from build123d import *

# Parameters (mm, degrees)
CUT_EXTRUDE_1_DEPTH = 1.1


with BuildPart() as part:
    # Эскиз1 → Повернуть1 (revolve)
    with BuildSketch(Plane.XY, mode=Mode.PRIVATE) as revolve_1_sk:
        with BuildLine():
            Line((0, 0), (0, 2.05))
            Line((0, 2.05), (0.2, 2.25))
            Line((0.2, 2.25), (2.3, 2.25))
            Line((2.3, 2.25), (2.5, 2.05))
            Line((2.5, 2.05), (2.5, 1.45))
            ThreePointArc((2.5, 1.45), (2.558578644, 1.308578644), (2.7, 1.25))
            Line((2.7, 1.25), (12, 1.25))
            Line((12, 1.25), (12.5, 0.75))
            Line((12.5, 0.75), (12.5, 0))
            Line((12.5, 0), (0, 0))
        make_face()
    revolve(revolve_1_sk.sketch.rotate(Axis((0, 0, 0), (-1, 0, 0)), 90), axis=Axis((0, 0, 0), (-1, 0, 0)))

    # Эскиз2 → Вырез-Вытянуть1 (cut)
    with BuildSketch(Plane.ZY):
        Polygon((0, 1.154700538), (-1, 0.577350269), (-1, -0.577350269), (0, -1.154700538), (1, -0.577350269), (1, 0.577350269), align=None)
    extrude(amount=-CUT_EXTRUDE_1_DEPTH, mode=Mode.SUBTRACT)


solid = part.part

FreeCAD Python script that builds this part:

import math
import FreeCAD as App
import Part
import Sketcher
from FreeCAD import Vector
Q = App.Units.Quantity

doc = App.newDocument("Part")
body = doc.addObject("PartDesign::Body", "Body")

sketch1 = body.newObject("Sketcher::SketchObject", "Sketch")
sketch1.AttachmentSupport = (doc.getObject("XY_Plane"), [""])
sketch1.MapMode = "FlatFace"
sketch1.addGeometry(Part.LineSegment(Vector(0, 2.05, 0), Vector(0, 0, 0)), False)
sketch1.addGeometry(Part.LineSegment(Vector(0, 0, 0), Vector(12.5, 0, 0)), False)
sketch1.addGeometry(Part.LineSegment(Vector(12.5, 0, 0), Vector(12.5, 0.75, 0)), False)
sketch1.addGeometry(Part.LineSegment(Vector(12.5, 0.75, 0), Vector(12, 1.25, 0)), False)
sketch1.addGeometry(Part.LineSegment(Vector(12, 1.25, 0), Vector(2.7, 1.25, 0)), False)
sketch1.addGeometry(Part.ArcOfCircle(Part.Circle(Vector(2.7, 1.45, 0), Vector(0, 0, 1), 0.2), math.radians(-180), math.radians(-90)), False)
sketch1.addGeometry(Part.LineSegment(Vector(2.5, 1.45, 0), Vector(2.5, 2.05, 0)), False)
sketch1.addGeometry(Part.LineSegment(Vector(2.5, 2.05, 0), Vector(2.3, 2.25, 0)), False)
sketch1.addGeometry(Part.LineSegment(Vector(2.3, 2.25, 0), Vector(0.2, 2.25, 0)), False)
sketch1.addGeometry(Part.LineSegment(Vector(0.2, 2.25, 0), Vector(0, 2.05, 0)), False)
sketch1.addConstraint(Sketcher.Constraint("Coincident", 0, 2, 1, 1))
sketch1.addConstraint(Sketcher.Constraint("Coincident", 1, 2, 2, 1))
sketch1.addConstraint(Sketcher.Constraint("Coincident", 2, 2, 3, 1))
sketch1.addConstraint(Sketcher.Constraint("Coincident", 3, 2, 4, 1))
sketch1.addConstraint(Sketcher.Constraint("Tangent", 4, 2, 5, 2))
sketch1.addConstraint(Sketcher.Constraint("Tangent", 5, 1, 6, 1))
sketch1.addConstraint(Sketcher.Constraint("Coincident", 6, 2, 7, 1))
sketch1.addConstraint(Sketcher.Constraint("Coincident", 7, 2, 8, 1))
sketch1.addConstraint(Sketcher.Constraint("Coincident", 8, 2, 9, 1))
sketch1.addConstraint(Sketcher.Constraint("Coincident", 9, 2, 0, 1))
sketch1.addConstraint(Sketcher.Constraint("Vertical", 0))
sketch1.addConstraint(Sketcher.Constraint("Horizontal", 1))
sketch1.addConstraint(Sketcher.Constraint("Vertical", 2))
sketch1.addConstraint(Sketcher.Constraint("Horizontal", 4))
sketch1.addConstraint(Sketcher.Constraint("Vertical", 6))
sketch1.addConstraint(Sketcher.Constraint("Horizontal", 8))
sketch1.addConstraint(Sketcher.Constraint("Coincident", 0, 2, -1, 1))
sketch1.addConstraint(Sketcher.Constraint("Parallel", 3, 7))
sketch1.addConstraint(Sketcher.Constraint("Perpendicular", 7, 9))
sketch1.addConstraint(Sketcher.Constraint("Horizontal", 6, 2, 9, 2))
sketch1.addConstraint(Sketcher.Constraint("Equal", 7, 9))
sketch1.addConstraint(Sketcher.Constraint("Radius", 5, 0.2))
sketch1.addConstraint(Sketcher.Constraint("DistanceX", 1, 1, 1, 2, 12.5))
sketch1.addConstraint(Sketcher.Constraint("DistanceX", 4, 2, 4, 1, 9.3))
sketch1.addConstraint(Sketcher.Constraint("DistanceX", 8, 2, 8, 1, 2.1))
sketch1.addConstraint(Sketcher.Constraint("DistanceY", 6, 1, 6, 2, 0.6))
sketch1.addConstraint(Sketcher.Constraint("DistanceX", -1, 1, 3, 2, 12.0))
sketch1.addConstraint(Sketcher.Constraint("DistanceY", 0, 2, 0, 1, 2.05))
revolution = body.newObject("PartDesign::Revolution", "Revolution")
revolution.Profile = sketch1
revolution.ReferenceAxis = (sketch1, ["H_Axis"])
revolution.Angle = 360

sketch2 = body.newObject("Sketcher::SketchObject", "Sketch001")
sketch2.AttachmentSupport = (doc.getObject("YZ_Plane"), [""])
sketch2.MapMode = "FlatFace"
sketch2.addGeometry(Part.LineSegment(Vector(1.154701, 0, 0), Vector(0.57735, -1, 0)), False)
sketch2.addGeometry(Part.LineSegment(Vector(0.57735, -1, 0), Vector(-0.57735, -1, 0)), False)
sketch2.addGeometry(Part.LineSegment(Vector(-0.57735, -1, 0), Vector(-1.154701, 0, 0)), False)
sketch2.addGeometry(Part.LineSegment(Vector(-1.154701, 0, 0), Vector(-0.57735, 1, 0)), False)
sketch2.addGeometry(Part.LineSegment(Vector(-0.57735, 1, 0), Vector(0.57735, 1, 0)), False)
sketch2.addGeometry(Part.LineSegment(Vector(0.57735, 1, 0), Vector(1.154701, 0, 0)), False)
sketch2.addConstraint(Sketcher.Constraint("Coincident", 0, 2, 1, 1))
sketch2.addConstraint(Sketcher.Constraint("Coincident", 1, 2, 2, 1))
sketch2.addConstraint(Sketcher.Constraint("Coincident", 2, 2, 3, 1))
sketch2.addConstraint(Sketcher.Constraint("Coincident", 3, 2, 4, 1))
sketch2.addConstraint(Sketcher.Constraint("Coincident", 4, 2, 5, 1))
sketch2.addConstraint(Sketcher.Constraint("Coincident", 5, 2, 0, 1))
sketch2.addConstraint(Sketcher.Constraint("Horizontal", 1))
sketch2.addConstraint(Sketcher.Constraint("Horizontal", 4))
sketch2.addConstraint(Sketcher.Constraint("Symmetric", 0, 2, 3, 2, -1, 1))
sketch2.addConstraint(Sketcher.Constraint("Symmetric", 2, 2, 5, 2, -1, 1))
sketch2.addConstraint(Sketcher.Constraint("PointOnObject", 2, 2, -1))
sketch2.addConstraint(Sketcher.Constraint("Parallel", 2, 5))
sketch2.addConstraint(Sketcher.Constraint("Vertical", 1, 2, 3, 2))
sketch2.addConstraint(Sketcher.Constraint("Angle", 0, Q("-120 deg")))
sketch2.addConstraint(Sketcher.Constraint("DistanceY", 0, 2, -1, 1, 1.0))
sketch2.addConstraint(Sketcher.Constraint("DistanceX", 1, 2, 1, 1, 1.154701))
pocket1 = body.newObject("PartDesign::Pocket", "Pocket")
pocket1.Profile = sketch2
pocket1.Length = 1.1
pocket1.Reversed = True

doc.recompute()
